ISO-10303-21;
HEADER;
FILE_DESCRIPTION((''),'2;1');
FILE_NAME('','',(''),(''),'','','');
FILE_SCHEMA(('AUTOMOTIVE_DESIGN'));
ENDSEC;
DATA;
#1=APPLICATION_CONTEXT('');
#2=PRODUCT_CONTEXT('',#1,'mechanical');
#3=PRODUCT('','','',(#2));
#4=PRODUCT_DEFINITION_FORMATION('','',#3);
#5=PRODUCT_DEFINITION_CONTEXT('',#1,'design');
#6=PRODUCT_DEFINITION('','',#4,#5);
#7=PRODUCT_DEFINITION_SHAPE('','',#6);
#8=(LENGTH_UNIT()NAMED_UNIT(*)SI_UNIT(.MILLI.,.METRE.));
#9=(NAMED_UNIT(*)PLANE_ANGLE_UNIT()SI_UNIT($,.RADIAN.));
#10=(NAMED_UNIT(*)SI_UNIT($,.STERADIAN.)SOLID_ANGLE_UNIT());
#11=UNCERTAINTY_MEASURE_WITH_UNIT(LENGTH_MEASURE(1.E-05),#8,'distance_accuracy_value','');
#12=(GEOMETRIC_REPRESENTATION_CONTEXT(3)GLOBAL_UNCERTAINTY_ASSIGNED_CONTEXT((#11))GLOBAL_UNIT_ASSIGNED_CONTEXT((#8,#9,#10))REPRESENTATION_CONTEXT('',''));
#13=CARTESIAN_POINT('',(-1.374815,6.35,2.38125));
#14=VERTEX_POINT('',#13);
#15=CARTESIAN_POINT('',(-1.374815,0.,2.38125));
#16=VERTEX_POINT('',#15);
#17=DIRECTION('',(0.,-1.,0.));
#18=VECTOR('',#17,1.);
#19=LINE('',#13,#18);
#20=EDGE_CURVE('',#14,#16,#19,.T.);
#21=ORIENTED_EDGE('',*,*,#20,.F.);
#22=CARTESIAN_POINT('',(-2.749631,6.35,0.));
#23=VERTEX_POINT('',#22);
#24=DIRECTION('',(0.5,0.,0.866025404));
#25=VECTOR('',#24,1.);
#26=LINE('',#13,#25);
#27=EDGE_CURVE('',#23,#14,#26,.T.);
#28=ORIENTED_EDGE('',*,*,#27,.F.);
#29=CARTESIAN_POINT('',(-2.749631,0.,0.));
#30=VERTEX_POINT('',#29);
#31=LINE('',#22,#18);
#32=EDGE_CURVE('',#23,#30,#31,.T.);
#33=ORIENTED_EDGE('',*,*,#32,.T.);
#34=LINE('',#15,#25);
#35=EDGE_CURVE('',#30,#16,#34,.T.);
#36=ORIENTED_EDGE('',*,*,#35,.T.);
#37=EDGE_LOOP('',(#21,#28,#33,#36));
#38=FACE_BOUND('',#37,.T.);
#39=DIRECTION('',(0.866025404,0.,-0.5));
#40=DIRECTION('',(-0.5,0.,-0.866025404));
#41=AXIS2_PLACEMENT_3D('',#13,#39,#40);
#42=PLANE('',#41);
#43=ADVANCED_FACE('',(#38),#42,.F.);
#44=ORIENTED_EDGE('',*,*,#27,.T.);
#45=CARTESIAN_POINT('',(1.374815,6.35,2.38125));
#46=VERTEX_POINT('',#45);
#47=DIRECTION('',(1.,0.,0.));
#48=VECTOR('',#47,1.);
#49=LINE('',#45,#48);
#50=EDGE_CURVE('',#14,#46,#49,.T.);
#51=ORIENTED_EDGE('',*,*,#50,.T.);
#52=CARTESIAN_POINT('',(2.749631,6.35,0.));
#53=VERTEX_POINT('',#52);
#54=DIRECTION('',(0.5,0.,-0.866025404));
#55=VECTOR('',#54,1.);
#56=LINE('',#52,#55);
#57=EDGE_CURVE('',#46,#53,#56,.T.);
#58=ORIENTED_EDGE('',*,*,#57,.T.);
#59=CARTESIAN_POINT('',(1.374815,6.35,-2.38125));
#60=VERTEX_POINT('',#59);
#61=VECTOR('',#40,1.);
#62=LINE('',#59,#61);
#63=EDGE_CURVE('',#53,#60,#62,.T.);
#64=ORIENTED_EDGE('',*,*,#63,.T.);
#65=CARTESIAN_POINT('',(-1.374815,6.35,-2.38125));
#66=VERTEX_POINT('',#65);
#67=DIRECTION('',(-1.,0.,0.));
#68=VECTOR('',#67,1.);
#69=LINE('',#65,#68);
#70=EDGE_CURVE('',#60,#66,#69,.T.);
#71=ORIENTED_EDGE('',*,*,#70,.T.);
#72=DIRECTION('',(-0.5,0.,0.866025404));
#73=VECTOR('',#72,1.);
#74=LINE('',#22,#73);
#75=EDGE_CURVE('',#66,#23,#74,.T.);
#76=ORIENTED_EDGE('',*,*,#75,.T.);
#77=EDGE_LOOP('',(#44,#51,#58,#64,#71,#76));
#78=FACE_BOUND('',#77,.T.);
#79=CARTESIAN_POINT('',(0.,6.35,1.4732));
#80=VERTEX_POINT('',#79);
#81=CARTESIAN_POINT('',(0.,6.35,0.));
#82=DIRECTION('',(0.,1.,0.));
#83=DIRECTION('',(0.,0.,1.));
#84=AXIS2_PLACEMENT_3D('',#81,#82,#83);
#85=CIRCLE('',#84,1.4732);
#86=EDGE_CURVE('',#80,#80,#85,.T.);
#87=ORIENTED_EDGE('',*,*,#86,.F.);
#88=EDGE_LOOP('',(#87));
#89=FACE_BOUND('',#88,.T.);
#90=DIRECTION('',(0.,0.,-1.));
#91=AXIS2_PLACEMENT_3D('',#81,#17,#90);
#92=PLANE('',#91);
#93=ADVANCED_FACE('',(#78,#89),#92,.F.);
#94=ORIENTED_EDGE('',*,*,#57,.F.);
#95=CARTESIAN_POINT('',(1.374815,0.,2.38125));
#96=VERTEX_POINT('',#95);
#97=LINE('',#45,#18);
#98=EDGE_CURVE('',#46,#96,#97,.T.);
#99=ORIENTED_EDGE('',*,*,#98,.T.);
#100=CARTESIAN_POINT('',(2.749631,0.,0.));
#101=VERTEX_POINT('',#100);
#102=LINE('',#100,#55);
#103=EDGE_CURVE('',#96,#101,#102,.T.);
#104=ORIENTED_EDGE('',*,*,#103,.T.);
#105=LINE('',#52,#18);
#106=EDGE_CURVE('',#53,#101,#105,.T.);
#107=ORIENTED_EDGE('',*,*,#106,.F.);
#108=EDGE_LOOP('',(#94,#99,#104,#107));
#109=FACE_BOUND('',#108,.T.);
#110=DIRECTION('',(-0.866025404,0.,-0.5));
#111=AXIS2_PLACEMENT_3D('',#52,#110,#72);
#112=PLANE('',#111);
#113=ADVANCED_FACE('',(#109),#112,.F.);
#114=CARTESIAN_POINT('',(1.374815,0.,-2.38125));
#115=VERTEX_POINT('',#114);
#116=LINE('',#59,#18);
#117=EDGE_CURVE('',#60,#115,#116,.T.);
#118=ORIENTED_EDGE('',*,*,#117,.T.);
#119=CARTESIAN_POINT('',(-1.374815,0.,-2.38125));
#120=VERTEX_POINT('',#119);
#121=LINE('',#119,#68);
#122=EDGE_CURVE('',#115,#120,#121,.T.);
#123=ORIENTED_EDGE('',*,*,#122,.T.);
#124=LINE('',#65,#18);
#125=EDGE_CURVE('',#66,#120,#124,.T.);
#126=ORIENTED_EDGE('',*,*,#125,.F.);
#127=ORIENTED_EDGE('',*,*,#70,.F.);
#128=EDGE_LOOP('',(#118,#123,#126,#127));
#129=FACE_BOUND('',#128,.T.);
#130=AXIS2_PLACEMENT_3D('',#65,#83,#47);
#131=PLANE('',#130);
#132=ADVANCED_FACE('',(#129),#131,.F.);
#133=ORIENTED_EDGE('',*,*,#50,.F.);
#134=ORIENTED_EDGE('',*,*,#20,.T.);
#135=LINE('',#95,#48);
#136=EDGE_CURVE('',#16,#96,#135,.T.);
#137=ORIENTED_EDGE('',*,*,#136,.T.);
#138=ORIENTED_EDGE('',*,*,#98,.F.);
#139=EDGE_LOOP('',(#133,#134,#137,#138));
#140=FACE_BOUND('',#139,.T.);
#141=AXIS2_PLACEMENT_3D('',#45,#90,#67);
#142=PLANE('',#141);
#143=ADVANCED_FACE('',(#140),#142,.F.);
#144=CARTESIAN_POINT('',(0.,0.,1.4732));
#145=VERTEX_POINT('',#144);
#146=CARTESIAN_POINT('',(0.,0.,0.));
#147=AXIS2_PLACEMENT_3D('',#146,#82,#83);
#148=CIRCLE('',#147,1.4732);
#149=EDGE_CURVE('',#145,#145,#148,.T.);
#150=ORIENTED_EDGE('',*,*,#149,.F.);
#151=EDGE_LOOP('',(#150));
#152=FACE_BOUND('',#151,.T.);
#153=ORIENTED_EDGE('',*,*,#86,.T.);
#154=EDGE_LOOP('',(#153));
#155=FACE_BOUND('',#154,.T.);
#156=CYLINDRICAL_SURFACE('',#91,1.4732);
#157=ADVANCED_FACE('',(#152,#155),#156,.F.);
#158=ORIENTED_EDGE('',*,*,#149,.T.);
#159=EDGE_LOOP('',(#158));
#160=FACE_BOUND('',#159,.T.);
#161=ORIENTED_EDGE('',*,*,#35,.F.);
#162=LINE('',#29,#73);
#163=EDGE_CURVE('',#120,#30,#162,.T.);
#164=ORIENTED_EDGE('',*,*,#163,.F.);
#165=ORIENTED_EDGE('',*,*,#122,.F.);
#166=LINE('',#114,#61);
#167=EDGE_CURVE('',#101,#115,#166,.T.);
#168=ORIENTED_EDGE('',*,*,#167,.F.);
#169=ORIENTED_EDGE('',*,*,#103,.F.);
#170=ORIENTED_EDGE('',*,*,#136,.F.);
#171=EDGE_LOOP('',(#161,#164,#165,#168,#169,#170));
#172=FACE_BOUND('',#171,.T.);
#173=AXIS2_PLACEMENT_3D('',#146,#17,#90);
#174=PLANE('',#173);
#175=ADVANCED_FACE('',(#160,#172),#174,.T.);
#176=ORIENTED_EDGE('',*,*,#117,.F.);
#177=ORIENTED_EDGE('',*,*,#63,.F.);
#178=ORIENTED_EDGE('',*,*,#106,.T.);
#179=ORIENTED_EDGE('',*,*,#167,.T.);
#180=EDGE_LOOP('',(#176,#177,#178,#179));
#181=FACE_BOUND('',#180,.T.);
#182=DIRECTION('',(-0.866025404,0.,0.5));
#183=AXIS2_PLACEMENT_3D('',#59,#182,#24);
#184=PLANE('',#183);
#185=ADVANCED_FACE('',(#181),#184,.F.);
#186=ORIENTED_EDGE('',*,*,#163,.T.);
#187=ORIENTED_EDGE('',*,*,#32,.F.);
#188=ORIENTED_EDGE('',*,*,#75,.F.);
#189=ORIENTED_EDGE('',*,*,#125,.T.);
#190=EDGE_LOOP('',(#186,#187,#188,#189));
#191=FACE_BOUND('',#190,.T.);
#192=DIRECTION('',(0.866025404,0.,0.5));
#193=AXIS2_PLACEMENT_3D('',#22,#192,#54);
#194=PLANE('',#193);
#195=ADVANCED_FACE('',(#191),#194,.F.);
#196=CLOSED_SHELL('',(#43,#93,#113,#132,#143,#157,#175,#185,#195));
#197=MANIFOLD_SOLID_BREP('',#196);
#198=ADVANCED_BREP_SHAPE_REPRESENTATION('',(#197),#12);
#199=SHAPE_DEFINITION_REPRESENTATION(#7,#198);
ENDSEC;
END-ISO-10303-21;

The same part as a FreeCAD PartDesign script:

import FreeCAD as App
import Part
import Sketcher
from FreeCAD import Vector
Q = App.Units.Quantity


def add_polygon(sketch, points):
    """Adds a closed chain of lines whose ends are joined by coincident constraints."""
    first, n = sketch.GeometryCount, len(points)
    for a, b in zip(points, points[1:] + points[:1]):
        sketch.addGeometry(Part.LineSegment(App.Vector(*a, 0), App.Vector(*b, 0)), False)
    for i in range(n):
        sketch.addConstraint(Sketcher.Constraint("Coincident", first + i, 2, first + (i + 1) % n, 1))

doc = App.newDocument("Part")
body = doc.addObject("PartDesign::Body", "Body")

# Sketch on XZ plane
sketch1 = body.newObject("Sketcher::SketchObject", "Sketch")
sketch1.AttachmentSupport = (doc.getObject("XZ_Plane"), [""])
sketch1.MapMode = "FlatFace"
add_polygon(sketch1, [(-1.4, -2.4), (-2.7, 0), (-1.4, 2.4), (1.4, 2.4), (2.7, 0), (1.4, -2.4)])  # lines 0-5
sketch1.addGeometry(Part.Circle(Vector(0, 0, 0), Vector(0, 0, 1), 1.5), False)  # 6
sketch1.addConstraint([
    Sketcher.Constraint("Horizontal", 2),
    Sketcher.Constraint("Horizontal", 5),
    Sketcher.Constraint("Coincident", 6, 3, -1, 1),
    Sketcher.Constraint("Symmetric", 0, 2, 3, 2, -1, 1),
    Sketcher.Constraint("Symmetric", 1, 2, 4, 2, -1, 1),
    Sketcher.Constraint("PointOnObject", 0, 2, -1),
    Sketcher.Constraint("Parallel", 0, 3),
    Sketcher.Constraint("Vertical", 2, 2, 4, 2),
    Sketcher.Constraint("Diameter", 6, Q("0.116 in")),
    Sketcher.Constraint("Angle", 0, Q("120 deg")),
    Sketcher.Constraint("DistanceY", -1, 1, 1, 2, Q("0.09375 in")),
    Sketcher.Constraint("DistanceX", 2, 1, 2, 2, 2.749631),
])
pad1 = body.newObject("PartDesign::Pad", "Pad")
pad1.Profile = sketch1
pad1.Length = Q("0.25 in")
pad1.Reversed = True

doc.recompute()
